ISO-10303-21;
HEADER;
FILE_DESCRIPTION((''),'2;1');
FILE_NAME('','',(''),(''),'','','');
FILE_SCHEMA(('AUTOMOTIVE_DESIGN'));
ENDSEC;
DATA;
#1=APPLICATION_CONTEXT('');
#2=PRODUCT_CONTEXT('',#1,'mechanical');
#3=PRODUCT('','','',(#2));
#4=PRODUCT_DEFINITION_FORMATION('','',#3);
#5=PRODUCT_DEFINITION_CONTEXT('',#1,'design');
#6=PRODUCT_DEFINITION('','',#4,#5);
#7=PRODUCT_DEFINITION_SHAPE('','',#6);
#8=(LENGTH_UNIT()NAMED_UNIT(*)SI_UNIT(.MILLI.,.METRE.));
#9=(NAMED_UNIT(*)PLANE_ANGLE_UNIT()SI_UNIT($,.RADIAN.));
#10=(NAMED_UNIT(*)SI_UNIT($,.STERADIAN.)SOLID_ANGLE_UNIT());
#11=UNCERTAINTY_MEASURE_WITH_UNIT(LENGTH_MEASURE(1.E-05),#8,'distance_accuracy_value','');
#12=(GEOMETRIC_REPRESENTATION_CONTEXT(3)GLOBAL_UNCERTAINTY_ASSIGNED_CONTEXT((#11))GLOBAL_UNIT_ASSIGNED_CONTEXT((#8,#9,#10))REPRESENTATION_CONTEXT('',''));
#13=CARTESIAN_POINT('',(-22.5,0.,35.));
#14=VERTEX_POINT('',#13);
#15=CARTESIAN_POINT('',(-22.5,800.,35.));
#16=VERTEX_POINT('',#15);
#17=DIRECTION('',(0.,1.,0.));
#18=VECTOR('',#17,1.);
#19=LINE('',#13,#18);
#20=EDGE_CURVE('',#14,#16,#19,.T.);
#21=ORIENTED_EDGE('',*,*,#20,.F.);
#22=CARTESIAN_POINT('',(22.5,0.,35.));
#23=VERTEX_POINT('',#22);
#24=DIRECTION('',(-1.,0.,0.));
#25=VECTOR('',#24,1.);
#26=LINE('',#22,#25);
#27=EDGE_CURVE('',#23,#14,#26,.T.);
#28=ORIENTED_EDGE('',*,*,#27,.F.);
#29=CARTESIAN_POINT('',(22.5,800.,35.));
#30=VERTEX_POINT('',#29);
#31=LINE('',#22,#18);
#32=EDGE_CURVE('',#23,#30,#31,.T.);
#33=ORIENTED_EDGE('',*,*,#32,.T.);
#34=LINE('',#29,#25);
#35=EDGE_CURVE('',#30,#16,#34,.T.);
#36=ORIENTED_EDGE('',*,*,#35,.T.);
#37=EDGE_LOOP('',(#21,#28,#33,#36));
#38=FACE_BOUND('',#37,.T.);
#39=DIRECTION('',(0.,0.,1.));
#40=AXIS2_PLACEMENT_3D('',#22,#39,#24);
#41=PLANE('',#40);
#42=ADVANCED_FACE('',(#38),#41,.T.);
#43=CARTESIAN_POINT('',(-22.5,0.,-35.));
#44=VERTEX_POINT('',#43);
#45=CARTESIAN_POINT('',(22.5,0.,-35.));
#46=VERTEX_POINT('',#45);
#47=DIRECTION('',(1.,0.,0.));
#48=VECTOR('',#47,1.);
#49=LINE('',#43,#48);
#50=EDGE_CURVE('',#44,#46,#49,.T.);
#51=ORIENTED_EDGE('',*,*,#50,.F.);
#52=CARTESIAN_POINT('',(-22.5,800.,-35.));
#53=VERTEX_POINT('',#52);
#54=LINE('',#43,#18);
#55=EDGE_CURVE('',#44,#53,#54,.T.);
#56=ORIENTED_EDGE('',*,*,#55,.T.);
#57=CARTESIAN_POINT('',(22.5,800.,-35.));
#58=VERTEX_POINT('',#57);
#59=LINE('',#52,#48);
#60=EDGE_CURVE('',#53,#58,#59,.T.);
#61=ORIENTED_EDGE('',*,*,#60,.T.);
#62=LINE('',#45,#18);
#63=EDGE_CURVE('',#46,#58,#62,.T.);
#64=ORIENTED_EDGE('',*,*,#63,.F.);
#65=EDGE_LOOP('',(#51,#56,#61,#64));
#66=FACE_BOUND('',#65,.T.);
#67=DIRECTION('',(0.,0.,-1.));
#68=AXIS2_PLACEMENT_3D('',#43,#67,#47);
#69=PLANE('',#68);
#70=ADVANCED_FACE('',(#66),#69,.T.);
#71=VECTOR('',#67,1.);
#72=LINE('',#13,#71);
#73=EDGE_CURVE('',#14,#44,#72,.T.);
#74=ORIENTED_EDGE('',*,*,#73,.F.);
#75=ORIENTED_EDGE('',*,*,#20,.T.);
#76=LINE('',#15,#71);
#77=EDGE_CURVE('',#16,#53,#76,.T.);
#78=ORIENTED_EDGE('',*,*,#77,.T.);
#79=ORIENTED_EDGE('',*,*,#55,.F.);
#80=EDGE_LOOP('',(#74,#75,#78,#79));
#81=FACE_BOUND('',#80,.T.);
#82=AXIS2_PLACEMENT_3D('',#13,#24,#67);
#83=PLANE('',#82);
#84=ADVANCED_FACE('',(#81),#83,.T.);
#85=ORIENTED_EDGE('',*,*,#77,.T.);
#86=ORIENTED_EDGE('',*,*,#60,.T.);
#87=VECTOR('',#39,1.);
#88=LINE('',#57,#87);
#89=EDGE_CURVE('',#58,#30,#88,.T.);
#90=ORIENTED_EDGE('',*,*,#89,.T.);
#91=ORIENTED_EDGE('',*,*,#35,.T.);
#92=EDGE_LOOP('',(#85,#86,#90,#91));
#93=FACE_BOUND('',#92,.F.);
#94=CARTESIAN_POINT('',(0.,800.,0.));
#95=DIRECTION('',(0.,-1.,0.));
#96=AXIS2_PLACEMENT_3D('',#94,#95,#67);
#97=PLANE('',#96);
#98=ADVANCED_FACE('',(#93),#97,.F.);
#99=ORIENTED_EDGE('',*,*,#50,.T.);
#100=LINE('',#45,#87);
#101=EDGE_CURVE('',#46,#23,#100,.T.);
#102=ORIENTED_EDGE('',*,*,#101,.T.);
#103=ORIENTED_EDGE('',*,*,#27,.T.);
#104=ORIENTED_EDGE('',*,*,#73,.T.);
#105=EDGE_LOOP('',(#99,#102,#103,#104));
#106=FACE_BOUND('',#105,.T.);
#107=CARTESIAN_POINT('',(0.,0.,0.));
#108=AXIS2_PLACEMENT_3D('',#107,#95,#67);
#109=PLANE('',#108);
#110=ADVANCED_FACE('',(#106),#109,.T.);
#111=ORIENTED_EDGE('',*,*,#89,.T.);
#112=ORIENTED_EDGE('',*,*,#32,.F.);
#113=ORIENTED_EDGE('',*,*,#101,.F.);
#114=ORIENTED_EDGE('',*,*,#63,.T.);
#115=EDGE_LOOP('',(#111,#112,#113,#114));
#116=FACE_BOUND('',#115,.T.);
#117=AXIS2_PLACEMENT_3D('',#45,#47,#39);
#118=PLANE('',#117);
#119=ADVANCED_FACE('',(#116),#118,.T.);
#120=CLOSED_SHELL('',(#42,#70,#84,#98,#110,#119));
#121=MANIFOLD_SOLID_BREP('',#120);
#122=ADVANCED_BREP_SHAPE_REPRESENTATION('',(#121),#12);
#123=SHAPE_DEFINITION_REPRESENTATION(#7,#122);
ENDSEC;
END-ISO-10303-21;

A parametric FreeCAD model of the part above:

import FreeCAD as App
import Part
import Sketcher
from FreeCAD import Vector


def add_polygon(sketch, points):
    """Adds a closed chain of lines whose ends are joined by coincident constraints."""
    first, n = sketch.GeometryCount, len(points)
    for a, b in zip(points, points[1:] + points[:1]):
        sketch.addGeometry(Part.LineSegment(App.Vector(*a, 0), App.Vector(*b, 0)), False)
    for i in range(n):
        sketch.addConstraint(Sketcher.Constraint("Coincident", first + i, 2, first + (i + 1) % n, 1))

doc = App.newDocument("Part")
body = doc.addObject("PartDesign::Body", "Body")

# Sketch on XZ plane
sketch1 = doc.addObject("Sketcher::SketchObject", "Sketch")
body.addObject(sketch1)
sketch1.AttachmentSupport = (doc.XZ_Plane, [""])
sketch1.MapMode = "FlatFace"
add_polygon(sketch1, [(-22.5, 35), (-22.5, -35), (22.5, -35), (22.5, 35)])  # lines 0-3
sketch1.addConstraint(Sketcher.Constraint("Vertical", 0))
sketch1.addConstraint(Sketcher.Constraint("Horizontal", 1))
sketch1.addConstraint(Sketcher.Constraint("Vertical", 2))
sketch1.addConstraint(Sketcher.Constraint("Horizontal", 3))
sketch1.addConstraint(Sketcher.Constraint("Symmetric", 0, 2, 2, 2, -1, 1))
sketch1.addConstraint(Sketcher.Constraint("DistanceX", 1, 1, 1, 2, 45.0))
sketch1.addConstraint(Sketcher.Constraint("DistanceY", 0, 2, 0, 1, 70.0))
pad1 = doc.addObject("PartDesign::Pad", "Pad")
body.addObject(pad1)
pad1.Profile = sketch1
pad1.Length = 800
pad1.Reversed = True

doc.recompute()
